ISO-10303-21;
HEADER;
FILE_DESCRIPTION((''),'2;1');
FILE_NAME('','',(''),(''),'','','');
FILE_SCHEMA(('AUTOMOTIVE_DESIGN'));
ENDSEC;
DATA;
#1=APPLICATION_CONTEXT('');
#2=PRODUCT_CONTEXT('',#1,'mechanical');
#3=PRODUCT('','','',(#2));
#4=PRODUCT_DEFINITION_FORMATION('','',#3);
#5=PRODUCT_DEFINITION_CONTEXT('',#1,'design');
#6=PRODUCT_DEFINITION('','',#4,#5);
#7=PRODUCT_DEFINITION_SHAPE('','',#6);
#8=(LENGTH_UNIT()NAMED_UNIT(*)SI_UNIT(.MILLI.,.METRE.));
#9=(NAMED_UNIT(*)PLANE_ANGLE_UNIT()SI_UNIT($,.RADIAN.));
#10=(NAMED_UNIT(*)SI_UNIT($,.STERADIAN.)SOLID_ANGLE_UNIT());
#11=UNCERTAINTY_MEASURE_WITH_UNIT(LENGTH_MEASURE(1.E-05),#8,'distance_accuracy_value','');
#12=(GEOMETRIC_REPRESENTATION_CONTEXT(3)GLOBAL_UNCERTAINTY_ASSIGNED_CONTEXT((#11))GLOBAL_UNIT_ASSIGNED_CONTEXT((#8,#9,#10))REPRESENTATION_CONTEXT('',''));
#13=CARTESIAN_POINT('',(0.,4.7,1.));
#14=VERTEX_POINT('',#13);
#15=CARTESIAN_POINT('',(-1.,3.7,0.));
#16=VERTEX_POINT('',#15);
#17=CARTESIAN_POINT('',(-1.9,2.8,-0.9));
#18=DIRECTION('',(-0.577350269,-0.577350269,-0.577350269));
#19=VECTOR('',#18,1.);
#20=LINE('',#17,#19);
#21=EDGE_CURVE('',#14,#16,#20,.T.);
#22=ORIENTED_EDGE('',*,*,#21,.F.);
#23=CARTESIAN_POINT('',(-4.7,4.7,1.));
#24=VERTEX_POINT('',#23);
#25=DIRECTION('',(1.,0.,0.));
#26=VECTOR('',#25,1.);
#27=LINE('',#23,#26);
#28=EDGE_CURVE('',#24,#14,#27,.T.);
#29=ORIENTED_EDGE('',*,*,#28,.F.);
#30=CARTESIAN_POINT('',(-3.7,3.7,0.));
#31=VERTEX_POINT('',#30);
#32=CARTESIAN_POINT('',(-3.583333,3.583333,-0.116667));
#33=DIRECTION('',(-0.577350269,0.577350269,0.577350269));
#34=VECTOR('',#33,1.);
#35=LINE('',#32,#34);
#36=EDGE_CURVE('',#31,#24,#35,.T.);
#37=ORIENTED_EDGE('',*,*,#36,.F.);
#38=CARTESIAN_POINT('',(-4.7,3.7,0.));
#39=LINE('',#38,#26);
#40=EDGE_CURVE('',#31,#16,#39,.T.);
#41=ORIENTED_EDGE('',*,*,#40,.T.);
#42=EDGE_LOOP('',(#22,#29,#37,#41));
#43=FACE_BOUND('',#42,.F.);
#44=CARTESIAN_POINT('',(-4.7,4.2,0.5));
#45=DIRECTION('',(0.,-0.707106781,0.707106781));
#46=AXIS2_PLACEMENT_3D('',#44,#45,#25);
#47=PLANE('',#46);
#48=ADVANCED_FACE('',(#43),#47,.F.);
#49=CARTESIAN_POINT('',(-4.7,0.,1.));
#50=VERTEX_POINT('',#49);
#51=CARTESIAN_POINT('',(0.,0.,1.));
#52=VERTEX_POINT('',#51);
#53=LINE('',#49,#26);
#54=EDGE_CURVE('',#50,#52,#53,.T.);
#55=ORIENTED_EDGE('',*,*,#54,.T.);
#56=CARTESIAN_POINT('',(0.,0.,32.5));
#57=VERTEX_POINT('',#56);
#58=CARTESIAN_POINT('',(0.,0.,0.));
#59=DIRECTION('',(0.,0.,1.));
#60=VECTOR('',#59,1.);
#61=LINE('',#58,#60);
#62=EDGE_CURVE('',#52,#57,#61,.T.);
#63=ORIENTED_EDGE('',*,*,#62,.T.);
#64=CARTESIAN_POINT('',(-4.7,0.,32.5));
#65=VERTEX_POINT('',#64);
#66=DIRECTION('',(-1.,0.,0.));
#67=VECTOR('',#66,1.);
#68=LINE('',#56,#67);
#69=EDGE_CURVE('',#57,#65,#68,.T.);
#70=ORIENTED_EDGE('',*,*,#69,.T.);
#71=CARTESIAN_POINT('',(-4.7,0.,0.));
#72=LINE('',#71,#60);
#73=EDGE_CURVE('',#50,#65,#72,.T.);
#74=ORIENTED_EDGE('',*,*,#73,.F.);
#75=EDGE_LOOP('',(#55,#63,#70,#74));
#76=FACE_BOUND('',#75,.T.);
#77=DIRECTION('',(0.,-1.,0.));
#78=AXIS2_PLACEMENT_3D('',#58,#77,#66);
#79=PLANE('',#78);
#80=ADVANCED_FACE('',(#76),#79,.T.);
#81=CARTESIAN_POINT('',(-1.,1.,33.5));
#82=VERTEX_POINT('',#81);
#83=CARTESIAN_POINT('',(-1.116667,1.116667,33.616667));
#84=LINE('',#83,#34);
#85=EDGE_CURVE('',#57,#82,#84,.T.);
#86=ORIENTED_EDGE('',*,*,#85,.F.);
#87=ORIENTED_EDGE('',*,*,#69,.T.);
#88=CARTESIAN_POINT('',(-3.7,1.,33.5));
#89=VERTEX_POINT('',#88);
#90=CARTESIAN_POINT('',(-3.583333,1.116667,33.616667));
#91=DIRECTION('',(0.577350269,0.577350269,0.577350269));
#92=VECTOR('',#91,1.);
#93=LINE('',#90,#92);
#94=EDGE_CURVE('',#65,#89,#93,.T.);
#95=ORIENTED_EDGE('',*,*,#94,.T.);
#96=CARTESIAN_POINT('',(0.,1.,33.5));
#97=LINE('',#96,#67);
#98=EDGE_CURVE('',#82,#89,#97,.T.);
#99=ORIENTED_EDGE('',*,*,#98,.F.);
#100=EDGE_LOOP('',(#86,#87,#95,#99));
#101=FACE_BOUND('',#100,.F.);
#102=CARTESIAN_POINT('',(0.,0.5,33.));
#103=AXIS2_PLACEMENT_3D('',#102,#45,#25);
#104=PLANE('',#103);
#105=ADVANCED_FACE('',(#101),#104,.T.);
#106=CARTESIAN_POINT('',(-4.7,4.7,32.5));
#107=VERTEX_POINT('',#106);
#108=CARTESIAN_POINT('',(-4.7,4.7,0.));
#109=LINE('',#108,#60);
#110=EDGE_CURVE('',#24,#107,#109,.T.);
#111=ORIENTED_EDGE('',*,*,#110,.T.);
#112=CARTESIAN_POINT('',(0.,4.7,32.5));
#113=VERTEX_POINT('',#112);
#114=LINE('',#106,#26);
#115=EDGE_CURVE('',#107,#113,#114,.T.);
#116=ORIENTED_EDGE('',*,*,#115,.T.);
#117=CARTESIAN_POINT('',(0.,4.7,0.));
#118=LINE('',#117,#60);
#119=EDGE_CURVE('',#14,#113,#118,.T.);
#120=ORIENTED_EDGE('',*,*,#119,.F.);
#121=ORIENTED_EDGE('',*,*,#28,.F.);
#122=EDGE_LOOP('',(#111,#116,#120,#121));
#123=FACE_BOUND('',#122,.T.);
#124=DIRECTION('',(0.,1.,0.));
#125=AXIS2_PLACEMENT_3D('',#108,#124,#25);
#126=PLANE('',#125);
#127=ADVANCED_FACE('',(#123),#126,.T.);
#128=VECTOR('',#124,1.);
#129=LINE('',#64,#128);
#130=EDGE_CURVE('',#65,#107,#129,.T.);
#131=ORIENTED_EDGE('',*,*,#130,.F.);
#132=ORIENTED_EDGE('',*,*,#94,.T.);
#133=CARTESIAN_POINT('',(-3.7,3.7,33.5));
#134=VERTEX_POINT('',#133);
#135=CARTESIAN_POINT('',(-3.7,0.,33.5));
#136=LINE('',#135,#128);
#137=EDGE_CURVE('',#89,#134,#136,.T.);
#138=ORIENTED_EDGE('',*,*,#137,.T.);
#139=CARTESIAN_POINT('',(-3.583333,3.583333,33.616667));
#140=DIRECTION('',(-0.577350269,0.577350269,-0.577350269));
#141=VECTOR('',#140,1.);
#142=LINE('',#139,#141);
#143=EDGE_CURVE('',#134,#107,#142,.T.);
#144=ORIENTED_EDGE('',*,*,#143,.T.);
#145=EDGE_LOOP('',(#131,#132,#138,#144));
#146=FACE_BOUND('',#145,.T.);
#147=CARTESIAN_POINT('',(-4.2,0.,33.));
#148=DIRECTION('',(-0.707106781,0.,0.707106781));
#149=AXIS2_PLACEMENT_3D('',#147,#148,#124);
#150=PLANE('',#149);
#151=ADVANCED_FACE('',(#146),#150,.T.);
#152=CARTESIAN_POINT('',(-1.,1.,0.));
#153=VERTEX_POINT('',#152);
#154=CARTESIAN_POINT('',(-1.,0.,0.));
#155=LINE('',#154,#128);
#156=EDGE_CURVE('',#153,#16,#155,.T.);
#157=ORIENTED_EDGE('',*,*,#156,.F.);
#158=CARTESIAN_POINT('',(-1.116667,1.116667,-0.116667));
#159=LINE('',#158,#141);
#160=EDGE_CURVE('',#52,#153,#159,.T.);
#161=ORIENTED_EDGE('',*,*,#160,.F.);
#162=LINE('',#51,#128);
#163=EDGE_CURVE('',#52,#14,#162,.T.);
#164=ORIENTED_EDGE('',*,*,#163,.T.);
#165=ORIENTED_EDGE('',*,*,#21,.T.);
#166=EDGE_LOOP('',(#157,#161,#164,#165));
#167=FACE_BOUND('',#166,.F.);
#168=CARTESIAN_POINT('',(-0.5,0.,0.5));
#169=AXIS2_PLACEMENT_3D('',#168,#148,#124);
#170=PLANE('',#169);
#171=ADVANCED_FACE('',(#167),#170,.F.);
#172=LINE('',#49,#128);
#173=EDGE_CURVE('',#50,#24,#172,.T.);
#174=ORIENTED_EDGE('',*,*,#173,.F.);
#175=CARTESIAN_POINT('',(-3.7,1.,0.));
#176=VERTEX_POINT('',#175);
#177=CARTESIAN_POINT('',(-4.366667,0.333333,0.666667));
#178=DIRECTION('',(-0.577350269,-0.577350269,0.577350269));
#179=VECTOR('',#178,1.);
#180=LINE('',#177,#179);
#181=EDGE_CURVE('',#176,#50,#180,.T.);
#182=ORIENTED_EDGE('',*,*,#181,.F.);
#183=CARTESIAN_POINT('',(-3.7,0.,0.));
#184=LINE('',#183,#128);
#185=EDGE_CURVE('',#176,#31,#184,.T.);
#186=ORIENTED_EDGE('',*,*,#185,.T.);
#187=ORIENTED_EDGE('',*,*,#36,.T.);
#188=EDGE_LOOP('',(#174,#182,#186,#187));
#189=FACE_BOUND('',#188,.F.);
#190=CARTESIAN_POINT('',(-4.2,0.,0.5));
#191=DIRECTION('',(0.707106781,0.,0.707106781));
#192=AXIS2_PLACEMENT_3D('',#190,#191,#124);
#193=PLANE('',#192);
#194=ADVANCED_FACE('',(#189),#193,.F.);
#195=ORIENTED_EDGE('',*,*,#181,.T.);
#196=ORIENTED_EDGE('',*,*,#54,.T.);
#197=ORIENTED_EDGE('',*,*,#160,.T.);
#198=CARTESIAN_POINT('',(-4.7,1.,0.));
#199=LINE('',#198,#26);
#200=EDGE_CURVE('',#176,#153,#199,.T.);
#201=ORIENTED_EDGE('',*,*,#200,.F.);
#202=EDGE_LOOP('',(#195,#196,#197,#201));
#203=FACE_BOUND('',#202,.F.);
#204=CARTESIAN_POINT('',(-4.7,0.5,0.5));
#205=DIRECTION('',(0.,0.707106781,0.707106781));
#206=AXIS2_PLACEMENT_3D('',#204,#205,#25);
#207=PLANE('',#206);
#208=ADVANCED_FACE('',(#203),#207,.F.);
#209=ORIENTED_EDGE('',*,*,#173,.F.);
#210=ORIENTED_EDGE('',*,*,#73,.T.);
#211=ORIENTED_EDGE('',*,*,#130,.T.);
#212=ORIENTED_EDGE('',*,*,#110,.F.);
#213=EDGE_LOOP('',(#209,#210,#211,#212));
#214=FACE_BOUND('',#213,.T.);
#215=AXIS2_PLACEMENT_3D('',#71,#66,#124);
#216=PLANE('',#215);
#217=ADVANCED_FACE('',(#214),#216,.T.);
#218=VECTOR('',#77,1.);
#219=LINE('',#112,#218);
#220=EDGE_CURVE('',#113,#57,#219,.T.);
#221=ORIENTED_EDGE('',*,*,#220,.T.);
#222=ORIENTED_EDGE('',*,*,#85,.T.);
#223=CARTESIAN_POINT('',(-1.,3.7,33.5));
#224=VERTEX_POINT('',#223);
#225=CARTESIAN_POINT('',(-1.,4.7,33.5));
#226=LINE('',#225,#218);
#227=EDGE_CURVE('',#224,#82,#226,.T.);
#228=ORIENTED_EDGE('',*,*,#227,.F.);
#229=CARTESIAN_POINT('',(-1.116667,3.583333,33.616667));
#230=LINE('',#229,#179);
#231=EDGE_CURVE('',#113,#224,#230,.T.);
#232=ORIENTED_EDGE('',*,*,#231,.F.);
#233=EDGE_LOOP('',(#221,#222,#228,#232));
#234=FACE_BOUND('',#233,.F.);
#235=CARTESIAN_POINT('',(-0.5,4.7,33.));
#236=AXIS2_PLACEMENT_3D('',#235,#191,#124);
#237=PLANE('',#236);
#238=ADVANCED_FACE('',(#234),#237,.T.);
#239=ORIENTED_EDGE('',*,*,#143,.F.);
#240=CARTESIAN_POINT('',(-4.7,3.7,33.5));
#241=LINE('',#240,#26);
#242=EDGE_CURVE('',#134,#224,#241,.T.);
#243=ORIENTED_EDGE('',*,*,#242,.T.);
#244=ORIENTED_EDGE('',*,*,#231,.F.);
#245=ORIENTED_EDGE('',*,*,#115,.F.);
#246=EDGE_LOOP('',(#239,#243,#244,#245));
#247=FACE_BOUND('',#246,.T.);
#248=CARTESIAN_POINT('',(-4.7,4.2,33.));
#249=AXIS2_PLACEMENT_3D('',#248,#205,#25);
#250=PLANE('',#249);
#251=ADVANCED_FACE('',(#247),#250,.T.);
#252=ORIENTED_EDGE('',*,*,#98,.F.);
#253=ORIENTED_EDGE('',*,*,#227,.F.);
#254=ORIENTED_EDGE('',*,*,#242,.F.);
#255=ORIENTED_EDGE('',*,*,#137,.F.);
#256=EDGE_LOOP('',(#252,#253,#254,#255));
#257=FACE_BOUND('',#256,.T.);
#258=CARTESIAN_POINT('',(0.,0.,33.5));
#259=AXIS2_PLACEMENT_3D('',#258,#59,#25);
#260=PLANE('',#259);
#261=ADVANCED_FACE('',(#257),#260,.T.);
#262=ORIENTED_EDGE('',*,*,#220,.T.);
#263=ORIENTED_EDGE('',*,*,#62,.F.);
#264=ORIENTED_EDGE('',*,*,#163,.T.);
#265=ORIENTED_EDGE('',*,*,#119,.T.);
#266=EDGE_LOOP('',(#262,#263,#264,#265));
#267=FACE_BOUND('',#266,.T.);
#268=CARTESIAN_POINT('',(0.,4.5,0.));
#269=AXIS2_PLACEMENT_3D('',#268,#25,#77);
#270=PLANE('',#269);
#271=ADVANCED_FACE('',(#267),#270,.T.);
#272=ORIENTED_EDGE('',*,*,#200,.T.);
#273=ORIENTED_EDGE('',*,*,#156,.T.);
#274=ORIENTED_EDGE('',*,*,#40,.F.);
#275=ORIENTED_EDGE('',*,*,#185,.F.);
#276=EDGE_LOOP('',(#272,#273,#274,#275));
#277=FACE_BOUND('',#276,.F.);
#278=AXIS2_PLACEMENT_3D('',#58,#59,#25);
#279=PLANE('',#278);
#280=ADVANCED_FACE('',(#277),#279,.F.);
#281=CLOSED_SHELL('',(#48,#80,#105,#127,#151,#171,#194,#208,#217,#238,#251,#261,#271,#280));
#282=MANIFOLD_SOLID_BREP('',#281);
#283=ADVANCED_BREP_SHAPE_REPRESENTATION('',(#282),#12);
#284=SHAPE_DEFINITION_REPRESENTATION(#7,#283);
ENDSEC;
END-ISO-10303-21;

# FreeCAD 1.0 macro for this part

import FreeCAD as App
import Part
import Sketcher
Q = App.Units.Quantity


def edges_at(feature, points):
    """Names of the edges that pass closest to the given points."""
    edges = feature.Shape.Edges
    near = lambda p: min(range(len(edges)), key=lambda i: edges[i].distToShape(Part.Vertex(*p))[0])
    return sorted({f"Edge{near(p) + 1}" for p in points})


def add_polygon(sketch, points):
    """Adds a closed chain of lines whose ends are joined by coincident constraints."""
    first, n = sketch.GeometryCount, len(points)
    for a, b in zip(points, points[1:] + points[:1]):
        sketch.addGeometry(Part.LineSegment(App.Vector(*a, 0), App.Vector(*b, 0)), False)
    for i in range(n):
        sketch.addConstraint(Sketcher.Constraint("Coincident", first + i, 2, first + (i + 1) % n, 1))

doc = App.newDocument("Part")
body = doc.addObject("PartDesign::Body", "Body")

# Sketch on XY plane
sketch1 = body.newObject("Sketcher::SketchObject", "Sketch")
sketch1.AttachmentSupport = (doc.getObject("XY_Plane"), [""])
sketch1.MapMode = "FlatFace"
add_polygon(sketch1, [(0, 0), (0, 4.7), (-4.7, 4.7), (-4.7, 0)])  # lines 0-3
sketch1.addConstraint(Sketcher.Constraint("Vertical", 0))
sketch1.addConstraint(Sketcher.Constraint("Horizontal", 1))
sketch1.addConstraint(Sketcher.Constraint("Vertical", 2))
sketch1.addConstraint(Sketcher.Constraint("Horizontal", 3))
sketch1.addConstraint(Sketcher.Constraint("Coincident", 3, 2, -1, 1))
sketch1.addConstraint(Sketcher.Constraint("Equal", 3, 0))
sketch1.addConstraint(Sketcher.Constraint("DistanceX", 1, 2, 1, 1, Q("4.7 mm")))
pad1 = body.newObject("PartDesign::Pad", "Pad")
pad1.Profile = sketch1
pad1.Length = 33.5
doc.recompute()

chamfer = body.newObject("PartDesign::Chamfer", "Chamfer")
chamfer.Base = (pad1, edges_at(pad1, [
    (-4.7, 2.35, 0),
    (-2.25, 0, 0),
    (0, 2.25, 0),
    (-2.35, 4.7, 0),
    (0, 2.25, 33.5),
    (-2.25, 0, 33.5),
    (-4.7, 2.35, 33.5),
    (-2.35, 4.7, 33.5),
]))
chamfer.Size = 1

doc.recompute()
